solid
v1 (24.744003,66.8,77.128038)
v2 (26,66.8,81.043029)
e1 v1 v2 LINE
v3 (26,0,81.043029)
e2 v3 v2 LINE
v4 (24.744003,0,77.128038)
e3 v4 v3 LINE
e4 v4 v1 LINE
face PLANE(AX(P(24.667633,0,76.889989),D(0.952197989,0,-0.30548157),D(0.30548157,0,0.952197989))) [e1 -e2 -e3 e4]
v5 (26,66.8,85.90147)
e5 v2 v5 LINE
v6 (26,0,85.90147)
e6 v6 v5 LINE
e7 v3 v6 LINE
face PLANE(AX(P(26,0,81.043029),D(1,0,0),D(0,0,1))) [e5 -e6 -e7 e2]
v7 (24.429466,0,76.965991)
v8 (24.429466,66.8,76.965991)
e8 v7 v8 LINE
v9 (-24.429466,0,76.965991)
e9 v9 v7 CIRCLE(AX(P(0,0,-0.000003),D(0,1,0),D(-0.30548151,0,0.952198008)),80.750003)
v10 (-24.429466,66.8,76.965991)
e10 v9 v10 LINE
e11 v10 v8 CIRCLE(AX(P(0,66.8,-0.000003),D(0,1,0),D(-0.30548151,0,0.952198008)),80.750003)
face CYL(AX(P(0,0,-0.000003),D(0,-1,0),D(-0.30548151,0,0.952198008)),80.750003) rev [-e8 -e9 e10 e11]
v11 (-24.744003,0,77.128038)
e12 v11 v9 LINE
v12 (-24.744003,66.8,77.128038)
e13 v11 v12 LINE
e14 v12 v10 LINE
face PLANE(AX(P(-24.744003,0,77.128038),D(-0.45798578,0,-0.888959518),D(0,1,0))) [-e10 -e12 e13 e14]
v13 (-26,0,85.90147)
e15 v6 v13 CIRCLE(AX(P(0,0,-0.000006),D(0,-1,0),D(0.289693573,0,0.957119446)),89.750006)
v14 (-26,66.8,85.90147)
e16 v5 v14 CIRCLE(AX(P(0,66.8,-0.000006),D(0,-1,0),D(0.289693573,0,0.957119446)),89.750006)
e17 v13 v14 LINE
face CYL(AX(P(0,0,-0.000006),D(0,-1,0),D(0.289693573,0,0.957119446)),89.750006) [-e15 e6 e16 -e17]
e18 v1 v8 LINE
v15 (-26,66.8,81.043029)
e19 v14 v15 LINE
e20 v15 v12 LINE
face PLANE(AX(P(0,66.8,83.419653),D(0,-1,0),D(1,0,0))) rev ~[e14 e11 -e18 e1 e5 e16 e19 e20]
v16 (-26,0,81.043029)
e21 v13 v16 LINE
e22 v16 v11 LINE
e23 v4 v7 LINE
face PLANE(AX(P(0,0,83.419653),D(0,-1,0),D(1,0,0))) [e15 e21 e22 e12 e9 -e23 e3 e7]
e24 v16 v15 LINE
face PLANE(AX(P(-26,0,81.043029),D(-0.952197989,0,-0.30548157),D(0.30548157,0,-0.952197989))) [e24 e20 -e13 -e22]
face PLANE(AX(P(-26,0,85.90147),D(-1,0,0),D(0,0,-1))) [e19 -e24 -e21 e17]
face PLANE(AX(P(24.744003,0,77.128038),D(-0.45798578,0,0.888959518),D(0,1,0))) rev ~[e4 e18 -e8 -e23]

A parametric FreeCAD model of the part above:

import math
import FreeCAD as App
import Part
import Sketcher

V = App.Vector


def edges_at(feature, points):
    """Names of the edges that pass closest to the given points."""
    edges = feature.Shape.Edges
    near = lambda p: min(range(len(edges)), key=lambda i: edges[i].distToShape(Part.Vertex(*p))[0])
    return sorted({f"Edge{near(p) + 1}" for p in points})

doc = App.newDocument("Part")
body = doc.addObject("PartDesign::Body", "Body")

sketch1 = body.newObject("Sketcher::SketchObject", "Sketch")
sketch1.AttachmentSupport = (doc.getObject("XZ_Plane"), [""])
sketch1.MapMode = "FlatFace"
sketch1.addGeometry([
    Part.LineSegment(V(24.7, 76.9, 0), V(26, 81, 0)),
    Part.LineSegment(V(26, 81, 0), V(26, 85.9, 0)),
    Part.ArcOfCircle(Part.Circle(V(0, 0, 0), V(0, 0, 1), 89.8), math.radians(73), math.radians(107)),
    Part.LineSegment(V(-26, 85.9, 0), V(-26, 81, 0)),
    Part.LineSegment(V(-26, 81, 0), V(-24.7, 76.9, 0)),
    Part.ArcOfCircle(Part.Circle(V(0, 0, 0), V(0, 0, 1), 80.8), math.radians(72), math.radians(108)),
], False)
sketch1.addConstraint([
    Sketcher.Constraint("Coincident", 0, 2, 1, 1),
    Sketcher.Constraint("Coincident", 1, 2, 2, 1),
    Sketcher.Constraint("Coincident", 2, 2, 3, 1),
    Sketcher.Constraint("Coincident", 3, 2, 4, 1),
    Sketcher.Constraint("Coincident", 4, 2, 5, 2),
    Sketcher.Constraint("Coincident", 5, 1, 0, 1),
    Sketcher.Constraint("Vertical", 1),
    Sketcher.Constraint("Vertical", 3),
    Sketcher.Constraint("Coincident", 2, 3, -1, 1),
    Sketcher.Constraint("Coincident", 5, 3, -1, 1),
    Sketcher.Constraint("Symmetric", 0, 2, 3, 2, -2),
    Sketcher.Constraint("Horizontal", 4, 2, 5, 1),
    Sketcher.Constraint("DistanceX", -1, 1, 0, 2, 26.0),
    Sketcher.Constraint("Radius", 2, 89.750006),
    Sketcher.Constraint("Radius", 5, 80.750003),
    Sketcher.Constraint("DistanceY", 1, 1, 1, 2, 4.858441),
    Sketcher.Constraint("DistanceY", -1, 1, 4, 2, 76.889989),
])
pad1 = body.newObject("PartDesign::Pad", "Pad")
pad1.Profile = sketch1
pad1.Length = 66.8
pad1.Reversed = True
doc.recompute()

chamfer = body.newObject("PartDesign::Chamfer", "Chamfer")
chamfer.Base = (pad1, edges_at(pad1, [(24.668, 33.4, 76.89), (-24.668, 33.4, 76.89)]))
chamfer.Size = 0.25

doc.recompute()
